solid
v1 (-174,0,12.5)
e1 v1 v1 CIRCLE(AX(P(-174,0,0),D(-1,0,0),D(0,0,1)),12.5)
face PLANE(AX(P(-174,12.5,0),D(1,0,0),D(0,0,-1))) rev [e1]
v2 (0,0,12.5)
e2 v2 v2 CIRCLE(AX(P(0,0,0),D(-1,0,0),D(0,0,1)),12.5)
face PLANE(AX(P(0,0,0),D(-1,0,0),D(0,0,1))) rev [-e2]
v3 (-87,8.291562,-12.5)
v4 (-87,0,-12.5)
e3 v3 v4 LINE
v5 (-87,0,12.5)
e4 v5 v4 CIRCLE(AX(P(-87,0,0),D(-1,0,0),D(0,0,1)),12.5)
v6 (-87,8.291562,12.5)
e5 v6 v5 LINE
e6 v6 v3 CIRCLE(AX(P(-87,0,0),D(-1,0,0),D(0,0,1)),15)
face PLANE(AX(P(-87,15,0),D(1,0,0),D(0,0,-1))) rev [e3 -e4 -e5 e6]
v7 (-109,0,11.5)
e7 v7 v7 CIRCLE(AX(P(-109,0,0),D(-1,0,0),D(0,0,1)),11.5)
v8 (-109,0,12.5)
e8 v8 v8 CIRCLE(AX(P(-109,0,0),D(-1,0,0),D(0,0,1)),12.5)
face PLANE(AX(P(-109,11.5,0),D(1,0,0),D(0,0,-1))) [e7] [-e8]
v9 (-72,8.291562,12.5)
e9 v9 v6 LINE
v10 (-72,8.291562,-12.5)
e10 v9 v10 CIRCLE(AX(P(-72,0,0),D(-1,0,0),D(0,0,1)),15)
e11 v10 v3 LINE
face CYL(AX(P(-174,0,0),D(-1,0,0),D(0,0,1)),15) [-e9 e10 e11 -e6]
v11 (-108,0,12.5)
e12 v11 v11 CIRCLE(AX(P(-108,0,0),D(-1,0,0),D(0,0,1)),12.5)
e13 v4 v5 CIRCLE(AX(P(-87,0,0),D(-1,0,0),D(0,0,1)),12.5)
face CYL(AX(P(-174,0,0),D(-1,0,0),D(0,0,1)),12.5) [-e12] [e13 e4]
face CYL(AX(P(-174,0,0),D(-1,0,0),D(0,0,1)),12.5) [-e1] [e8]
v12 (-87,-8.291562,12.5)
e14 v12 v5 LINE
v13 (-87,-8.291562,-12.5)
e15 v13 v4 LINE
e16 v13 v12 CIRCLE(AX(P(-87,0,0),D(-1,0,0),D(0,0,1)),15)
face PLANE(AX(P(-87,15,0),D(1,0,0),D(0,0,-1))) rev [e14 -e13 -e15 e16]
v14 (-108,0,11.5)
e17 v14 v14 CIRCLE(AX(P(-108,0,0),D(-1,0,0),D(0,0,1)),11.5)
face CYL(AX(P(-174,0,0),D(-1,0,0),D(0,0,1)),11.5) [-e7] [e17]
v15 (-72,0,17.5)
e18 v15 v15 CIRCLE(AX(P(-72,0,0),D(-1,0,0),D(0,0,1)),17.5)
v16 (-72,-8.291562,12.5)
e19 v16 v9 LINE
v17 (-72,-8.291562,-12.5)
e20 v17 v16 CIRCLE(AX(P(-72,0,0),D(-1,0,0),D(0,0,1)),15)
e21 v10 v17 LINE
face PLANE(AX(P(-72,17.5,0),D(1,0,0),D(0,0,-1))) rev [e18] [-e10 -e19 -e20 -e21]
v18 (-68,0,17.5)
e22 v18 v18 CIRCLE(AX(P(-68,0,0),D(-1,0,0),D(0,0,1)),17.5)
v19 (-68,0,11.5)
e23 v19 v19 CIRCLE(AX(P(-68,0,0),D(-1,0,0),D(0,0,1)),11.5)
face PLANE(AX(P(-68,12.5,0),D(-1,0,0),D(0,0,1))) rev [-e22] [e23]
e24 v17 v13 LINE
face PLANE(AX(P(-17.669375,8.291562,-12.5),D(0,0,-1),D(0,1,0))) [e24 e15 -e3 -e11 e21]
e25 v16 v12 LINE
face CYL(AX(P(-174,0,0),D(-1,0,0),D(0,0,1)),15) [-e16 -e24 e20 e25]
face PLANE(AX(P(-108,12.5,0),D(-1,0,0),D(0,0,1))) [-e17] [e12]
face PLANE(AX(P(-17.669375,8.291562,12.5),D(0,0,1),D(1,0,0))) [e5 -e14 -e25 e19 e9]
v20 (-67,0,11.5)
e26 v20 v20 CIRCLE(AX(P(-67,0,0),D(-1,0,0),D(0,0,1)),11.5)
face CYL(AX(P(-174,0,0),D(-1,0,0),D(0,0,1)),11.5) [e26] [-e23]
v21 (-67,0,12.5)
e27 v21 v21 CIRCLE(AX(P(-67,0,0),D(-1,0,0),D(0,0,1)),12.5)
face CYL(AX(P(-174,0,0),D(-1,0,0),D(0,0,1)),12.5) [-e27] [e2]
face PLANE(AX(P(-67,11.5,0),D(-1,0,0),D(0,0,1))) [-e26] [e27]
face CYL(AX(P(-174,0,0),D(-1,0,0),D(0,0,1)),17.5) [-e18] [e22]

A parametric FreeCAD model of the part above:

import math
import FreeCAD as App
import Part
import Sketcher
from FreeCAD import Vector
Q = App.Units.Quantity

doc = App.newDocument("Part")
body = doc.addObject("PartDesign::Body", "Body")

sketch1 = doc.addObject("Sketcher::SketchObject", "Sketch")
body.addObject(sketch1)
sketch1.AttachmentSupport = (doc.XY_Plane, [""])
sketch1.MapMode = "FlatFace"
sketch1.addGeometry([
    Part.LineSegment(Vector(0, 0, 0), Vector(0, 12.5, 0)),
    Part.LineSegment(Vector(0, 12.5, 0), Vector(-68, 12.5, 0)),
    Part.LineSegment(Vector(-68, 12.5, 0), Vector(-68, 17.5, 0)),
    Part.LineSegment(Vector(-68, 17.5, 0), Vector(-72, 17.5, 0)),
    Part.LineSegment(Vector(-72, 17.5, 0), Vector(-72, 15, 0)),
    Part.LineSegment(Vector(-72, 15, 0), Vector(-87, 15, 0)),
    Part.LineSegment(Vector(-87, 15, 0), Vector(-87, 12.5, 0)),
    Part.LineSegment(Vector(-87, 12.5, 0), Vector(-174, 12.5, 0)),
    Part.LineSegment(Vector(-174, 12.5, 0), Vector(-174, 0, 0)),
    Part.LineSegment(Vector(-174, 0, 0), Vector(0, 0, 0)),
], False)
sketch1.addConstraint([
    Sketcher.Constraint("Coincident", 0, 2, 1, 1),
    Sketcher.Constraint("Coincident", 1, 2, 2, 1),
    Sketcher.Constraint("Coincident", 2, 2, 3, 1),
    Sketcher.Constraint("Coincident", 3, 2, 4, 1),
    Sketcher.Constraint("Coincident", 4, 2, 5, 1),
    Sketcher.Constraint("Coincident", 5, 2, 6, 1),
    Sketcher.Constraint("Coincident", 6, 2, 7, 1),
    Sketcher.Constraint("Coincident", 7, 2, 8, 1),
    Sketcher.Constraint("Coincident", 8, 2, 9, 1),
    Sketcher.Constraint("Coincident", 9, 2, 0, 1),
    Sketcher.Constraint("Vertical", 0),
    Sketcher.Constraint("Horizontal", 1),
    Sketcher.Constraint("Vertical", 2),
    Sketcher.Constraint("Horizontal", 3),
    Sketcher.Constraint("Vertical", 4),
    Sketcher.Constraint("Horizontal", 5),
    Sketcher.Constraint("Vertical", 6),
    Sketcher.Constraint("Horizontal", 7),
    Sketcher.Constraint("Vertical", 8),
    Sketcher.Constraint("Horizontal", 9),
    Sketcher.Constraint("Coincident", 9, 2, -1, 1),
    Sketcher.Constraint("Horizontal", 1, 2, 6, 2),
    Sketcher.Constraint("Equal", 4, 6),
    Sketcher.Constraint("DistanceX", 1, 2, 1, 1, Q("68 mm")),
    Sketcher.Constraint("DistanceX", 3, 2, 3, 1, Q("4 mm")),
    Sketcher.Constraint("DistanceX", 5, 2, 5, 1, Q("15 mm")),
    Sketcher.Constraint("DistanceX", 7, 2, 7, 1, Q("87 mm")),
    Sketcher.Constraint("DistanceY", 2, 1, 2, 2, Q("5 mm")),
    Sketcher.Constraint("DistanceY", 0, 1, 0, 2, Q("12.5 mm")),
])
revolution = doc.addObject("PartDesign::Revolution", "Revolution")
body.addObject(revolution)
revolution.Profile = sketch1
revolution.ReferenceAxis = (sketch1, ["H_Axis"])
revolution.Angle = 360

sketch2 = doc.addObject("Sketcher::SketchObject", "Sketch001")
body.addObject(sketch2)
sketch2.AttachmentSupport = (doc.XY_Plane, [""])
sketch2.MapMode = "FlatFace"
sketch2.addGeometry([
    Part.LineSegment(Vector(-109, 12.5, 0), Vector(-109, 11.5, 0)),
    Part.LineSegment(Vector(-109, 11.5, 0), Vector(-108, 11.5, 0)),
    Part.LineSegment(Vector(-108, 11.5, 0), Vector(-108, 12.5, 0)),
    Part.LineSegment(Vector(-108, 12.5, 0), Vector(-109, 12.5, 0)),
    Part.LineSegment(Vector(-68, 12.5, 0), Vector(-68, 11.5, 0)),
    Part.LineSegment(Vector(-68, 11.5, 0), Vector(-67, 11.5, 0)),
    Part.LineSegment(Vector(-67, 11.5, 0), Vector(-67, 12.5, 0)),
    Part.LineSegment(Vector(-67, 12.5, 0), Vector(-68, 12.5, 0)),
], False)
sketch2.addConstraint([
    Sketcher.Constraint("Coincident", 0, 2, 1, 1),
    Sketcher.Constraint("Coincident", 1, 2, 2, 1),
    Sketcher.Constraint("Coincident", 2, 2, 3, 1),
    Sketcher.Constraint("Coincident", 3, 2, 0, 1),
    Sketcher.Constraint("Coincident", 4, 2, 5, 1),
    Sketcher.Constraint("Coincident", 5, 2, 6, 1),
    Sketcher.Constraint("Coincident", 6, 2, 7, 1),
    Sketcher.Constraint("Coincident", 7, 2, 4, 1),
    Sketcher.Constraint("Vertical", 0),
    Sketcher.Constraint("Horizontal", 1),
    Sketcher.Constraint("Vertical", 2),
    Sketcher.Constraint("Horizontal", 3),
    Sketcher.Constraint("Vertical", 4),
    Sketcher.Constraint("Horizontal", 5),
    Sketcher.Constraint("Vertical", 6),
    Sketcher.Constraint("Horizontal", 7),
    Sketcher.Constraint("Horizontal", 1, 2, 4, 2),
    Sketcher.Constraint("Horizontal", 3, 2, 6, 2),
    Sketcher.Constraint("Equal", 3, 5),
    Sketcher.Constraint("Equal", 7, 0),
    Sketcher.Constraint("DistanceX", 1, 1, 1, 2, Q("1 mm")),
    Sketcher.Constraint("DistanceX", 0, 2, -1, 1, Q("109 mm")),
    Sketcher.Constraint("DistanceX", 4, 2, -1, 1, Q("68 mm")),
    Sketcher.Constraint("DistanceY", -1, 1, 0, 2, Q("11.5 mm")),
])
groove = doc.addObject("PartDesign::Groove", "Groove")
body.addObject(groove)
groove.Profile = sketch2
groove.ReferenceAxis = (sketch2, ["H_Axis"])
groove.Angle = 360

sketch3 = doc.addObject("Sketcher::SketchObject", "Sketch002")
body.addObject(sketch3)
sketch3.AttachmentSupport = (doc.YZ_Plane, [""])
sketch3.MapMode = "FlatFace"
sketch3.AttachmentOffset = App.Placement(Vector(0, 0, -87), App.Rotation())
sketch3.addGeometry([
    Part.LineSegment(Vector(37, -37, 0), Vector(-37, -37, 0)),
    Part.LineSegment(Vector(-37, -37, 0), Vector(-37, 37, 0)),
    Part.LineSegment(Vector(-37, 37, 0), Vector(37, 37, 0)),
    Part.LineSegment(Vector(37, 37, 0), Vector(37, -37, 0)),
    Part.LineSegment(Vector(-8, -12, 0), Vector(8, -12, 0)),
    Part.ArcOfCircle(Part.Circle(Vector(0, 0, 0), Vector(0, 0, 1), 15), math.radians(-56), math.radians(56)),
    Part.LineSegment(Vector(8, 12, 0), Vector(-8, 12, 0)),
    Part.ArcOfCircle(Part.Circle(Vector(0, 0, 0), Vector(0, 0, 1), 15), math.radians(124), math.radians(236)),
], False)
sketch3.addConstraint([
    Sketcher.Constraint("Coincident", 0, 2, 1, 1),
    Sketcher.Constraint("Coincident", 1, 2, 2, 1),
    Sketcher.Constraint("Coincident", 2, 2, 3, 1),
    Sketcher.Constraint("Coincident", 3, 2, 0, 1),
    Sketcher.Constraint("Coincident", 4, 2, 5, 1),
    Sketcher.Constraint("Coincident", 5, 2, 6, 1),
    Sketcher.Constraint("Coincident", 6, 2, 7, 1),
    Sketcher.Constraint("Coincident", 7, 2, 4, 1),
    Sketcher.Constraint("Horizontal", 0),
    Sketcher.Constraint("Vertical", 1),
    Sketcher.Constraint("Horizontal", 2),
    Sketcher.Constraint("Vertical", 3),
    Sketcher.Constraint("Horizontal", 4),
    Sketcher.Constraint("Horizontal", 6),
    Sketcher.Constraint("Coincident", 5, 3, -1, 1),
    Sketcher.Constraint("Coincident", 7, 3, -1, 1),
    Sketcher.Constraint("Equal", 5, 7),
    Sketcher.Constraint("Symmetric", 0, 2, 2, 2, -1, 1),
    Sketcher.Constraint("Vertical", 4, 2, 5, 2),
    Sketcher.Constraint("Equal", 2, 1),
    Sketcher.Constraint("Radius", 5, Q("15 mm")),
    Sketcher.Constraint("DistanceY", 4, 2, 5, 2, Q("25 mm")),
    Sketcher.Constraint("DistanceX", 0, 2, 0, 1, Q("73.18 mm")),
])
pocket1 = doc.addObject("PartDesign::Pocket", "Pocket")
body.addObject(pocket1)
pocket1.Profile = sketch3
pocket1.Length = 15
pocket1.Reversed = True

doc.recompute()
